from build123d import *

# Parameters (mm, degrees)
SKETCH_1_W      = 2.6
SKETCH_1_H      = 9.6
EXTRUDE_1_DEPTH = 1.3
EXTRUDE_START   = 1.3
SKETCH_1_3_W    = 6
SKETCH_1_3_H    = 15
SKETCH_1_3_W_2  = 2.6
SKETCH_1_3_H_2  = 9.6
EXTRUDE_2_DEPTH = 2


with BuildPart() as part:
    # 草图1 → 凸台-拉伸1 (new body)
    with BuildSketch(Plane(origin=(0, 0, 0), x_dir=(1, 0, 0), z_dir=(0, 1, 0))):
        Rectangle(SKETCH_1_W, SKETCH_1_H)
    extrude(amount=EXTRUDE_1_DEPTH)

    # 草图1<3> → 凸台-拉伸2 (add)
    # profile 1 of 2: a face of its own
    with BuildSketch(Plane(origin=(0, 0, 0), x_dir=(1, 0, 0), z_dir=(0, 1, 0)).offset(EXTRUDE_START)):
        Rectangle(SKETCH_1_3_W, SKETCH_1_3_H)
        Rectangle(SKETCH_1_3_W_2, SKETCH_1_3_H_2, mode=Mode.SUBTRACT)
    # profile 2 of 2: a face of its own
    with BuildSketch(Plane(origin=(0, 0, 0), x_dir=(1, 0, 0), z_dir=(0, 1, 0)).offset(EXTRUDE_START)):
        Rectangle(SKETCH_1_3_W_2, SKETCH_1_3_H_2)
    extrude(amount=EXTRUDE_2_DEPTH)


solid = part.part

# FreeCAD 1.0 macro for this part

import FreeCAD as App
import Part
import Sketcher

V = App.Vector
Q = App.Units.Quantity


def add_polygon(sketch, points):
    """Adds a closed chain of lines whose ends are joined by coincident constraints."""
    first, n = sketch.GeometryCount, len(points)
    for a, b in zip(points, points[1:] + points[:1]):
        sketch.addGeometry(Part.LineSegment(App.Vector(*a, 0), App.Vector(*b, 0)), False)
    for i in range(n):
        sketch.addConstraint(Sketcher.Constraint("Coincident", first + i, 2, first + (i + 1) % n, 1))

doc = App.newDocument("Part")
body = doc.addObject("PartDesign::Body", "Body")

# Sketch on XZ plane
sketch1 = body.newObject("Sketcher::SketchObject", "Sketch")
sketch1.AttachmentSupport = (doc.getObject("XZ_Plane"), [""])
sketch1.MapMode = "FlatFace"
add_polygon(sketch1, [(-1.3, -4.8), (-1.3, 4.8), (1.3, 4.8), (1.3, -4.8)])  # lines 0-3
sketch1.addConstraint([
    Sketcher.Constraint("Vertical", 0),
    Sketcher.Constraint("Horizontal", 1),
    Sketcher.Constraint("Vertical", 2),
    Sketcher.Constraint("Horizontal", 3),
    Sketcher.Constraint("Symmetric", 0, 2, 2, 2, -1, 1),
    Sketcher.Constraint("DistanceX", 1, 1, 1, 2, Q("2.6 mm")),
    Sketcher.Constraint("DistanceY", 0, 1, 0, 2, Q("9.6 mm")),
])
pad1 = body.newObject("PartDesign::Pad", "Pad")
pad1.Profile = sketch1
pad1.Length = 1.3
pad1.Reversed = True

# Sketch on XZ plane
sketch2 = body.newObject("Sketcher::SketchObject", "Sketch001")
sketch2.AttachmentSupport = (doc.getObject("XZ_Plane"), [""])
sketch2.MapMode = "FlatFace"
sketch2.AttachmentOffset = App.Placement(V(0, 0, -1.3), App.Rotation())
add_polygon(sketch2, [(-3, -8), (-3, 8), (3, 8), (3, -8)])  # lines 0-3
sketch2.addConstraint([
    Sketcher.Constraint("Vertical", 0),
    Sketcher.Constraint("Horizontal", 1),
    Sketcher.Constraint("Vertical", 2),
    Sketcher.Constraint("Horizontal", 3),
    Sketcher.Constraint("Symmetric", 0, 2, 2, 2, -1, 1),
    Sketcher.Constraint("DistanceX", 1, 1, 1, 2, Q("6 mm")),
    Sketcher.Constraint("DistanceY", 0, 1, 0, 2, Q("15 mm")),
])
pad2 = body.newObject("PartDesign::Pad", "Pad001")
pad2.Profile = sketch2
pad2.Length = 2
pad2.Reversed = True

doc.recompute()
